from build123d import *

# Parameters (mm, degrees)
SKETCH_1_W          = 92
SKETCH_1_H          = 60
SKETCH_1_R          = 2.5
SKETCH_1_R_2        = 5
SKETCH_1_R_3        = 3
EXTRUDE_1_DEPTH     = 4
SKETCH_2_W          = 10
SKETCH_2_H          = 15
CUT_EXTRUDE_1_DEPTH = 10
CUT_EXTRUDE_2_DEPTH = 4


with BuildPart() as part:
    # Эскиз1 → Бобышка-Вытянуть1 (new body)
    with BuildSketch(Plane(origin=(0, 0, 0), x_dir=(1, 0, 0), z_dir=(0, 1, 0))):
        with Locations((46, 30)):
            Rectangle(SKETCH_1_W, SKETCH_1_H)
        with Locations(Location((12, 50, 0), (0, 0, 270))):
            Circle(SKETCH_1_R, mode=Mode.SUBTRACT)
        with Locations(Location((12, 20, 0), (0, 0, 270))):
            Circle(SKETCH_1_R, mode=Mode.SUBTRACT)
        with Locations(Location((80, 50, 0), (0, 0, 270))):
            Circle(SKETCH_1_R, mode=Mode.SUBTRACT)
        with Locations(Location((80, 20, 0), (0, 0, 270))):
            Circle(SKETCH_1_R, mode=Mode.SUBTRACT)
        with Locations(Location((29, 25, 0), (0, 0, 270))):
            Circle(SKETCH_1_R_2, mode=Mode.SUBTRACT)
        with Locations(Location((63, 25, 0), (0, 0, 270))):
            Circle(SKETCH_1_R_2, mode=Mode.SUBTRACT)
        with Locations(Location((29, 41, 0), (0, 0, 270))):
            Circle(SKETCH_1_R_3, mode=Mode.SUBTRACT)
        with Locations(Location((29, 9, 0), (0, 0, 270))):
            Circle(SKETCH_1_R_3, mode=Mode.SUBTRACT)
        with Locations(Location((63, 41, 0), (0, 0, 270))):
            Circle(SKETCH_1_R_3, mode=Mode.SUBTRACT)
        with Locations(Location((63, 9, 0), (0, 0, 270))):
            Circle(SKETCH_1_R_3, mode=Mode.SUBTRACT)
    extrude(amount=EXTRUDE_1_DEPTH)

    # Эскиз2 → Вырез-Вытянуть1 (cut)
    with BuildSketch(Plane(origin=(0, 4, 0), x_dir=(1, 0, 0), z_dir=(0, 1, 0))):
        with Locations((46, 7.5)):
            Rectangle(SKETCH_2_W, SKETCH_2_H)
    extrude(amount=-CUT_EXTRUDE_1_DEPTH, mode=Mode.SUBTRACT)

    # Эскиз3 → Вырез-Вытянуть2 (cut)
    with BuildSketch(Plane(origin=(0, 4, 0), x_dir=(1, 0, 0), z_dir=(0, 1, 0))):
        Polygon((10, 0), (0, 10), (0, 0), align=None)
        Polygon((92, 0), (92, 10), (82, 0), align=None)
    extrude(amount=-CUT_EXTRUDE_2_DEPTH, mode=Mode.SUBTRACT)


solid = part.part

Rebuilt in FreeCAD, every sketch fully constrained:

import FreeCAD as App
import Part
import Sketcher

V = App.Vector

doc = App.newDocument("Part")
body = doc.addObject("PartDesign::Body", "Body")

sketch1 = body.newObject("Sketcher::SketchObject", "Sketch")
sketch1.AttachmentSupport = (doc.getObject("XZ_Plane"), [""])
sketch1.MapMode = "FlatFace"
sketch1.addGeometry([
    Part.LineSegment(V(0, -60, 0), V(0, 0, 0)),
    Part.LineSegment(V(0, 0, 0), V(92, 0, 0)),
    Part.LineSegment(V(92, 0, 0), V(92, -60, 0)),
    Part.LineSegment(V(92, -60, 0), V(0, -60, 0)),
    Part.Circle(V(29, -9, 0), V(0, 0, 1), 3),
    Part.Circle(V(12, -20, 0), V(0, 0, 1), 2.5),
    Part.Circle(V(29, -25, 0), V(0, 0, 1), 5),
    Part.Circle(V(63, -9, 0), V(0, 0, 1), 3),
    Part.Circle(V(63, -25, 0), V(0, 0, 1), 5),
    Part.Circle(V(80, -20, 0), V(0, 0, 1), 2.5),
    Part.Circle(V(12, -50, 0), V(0, 0, 1), 2.5),
    Part.Circle(V(29, -41, 0), V(0, 0, 1), 3),
    Part.Circle(V(63, -41, 0), V(0, 0, 1), 3),
    Part.Circle(V(80, -50, 0), V(0, 0, 1), 2.5),
], False)
sketch1.addConstraint([
    Sketcher.Constraint("Coincident", 0, 2, 1, 1),
    Sketcher.Constraint("Coincident", 1, 2, 2, 1),
    Sketcher.Constraint("Coincident", 2, 2, 3, 1),
    Sketcher.Constraint("Coincident", 3, 2, 0, 1),
    Sketcher.Constraint("Vertical", 0),
    Sketcher.Constraint("Horizontal", 1),
    Sketcher.Constraint("Vertical", 2),
    Sketcher.Constraint("Horizontal", 3),
    Sketcher.Constraint("Coincident", 0, 2, -1, 1),
    Sketcher.Constraint("Equal", 4, 7),
    Sketcher.Constraint("Equal", 6, 8),
    Sketcher.Constraint("Equal", 5, 9),
    Sketcher.Constraint("Equal", 9, 10),
    Sketcher.Constraint("Equal", 7, 11),
    Sketcher.Constraint("Equal", 11, 12),
    Sketcher.Constraint("Equal", 10, 13),
    Sketcher.Constraint("Horizontal", 4, 3, 7, 3),
    Sketcher.Constraint("Horizontal", 6, 3, 8, 3),
    Sketcher.Constraint("Horizontal", 5, 3, 9, 3),
    Sketcher.Constraint("Horizontal", 11, 3, 12, 3),
    Sketcher.Constraint("Horizontal", 10, 3, 13, 3),
    Sketcher.Constraint("Vertical", 4, 3, 6, 3),
    Sketcher.Constraint("Vertical", 7, 3, 8, 3),
    Sketcher.Constraint("Vertical", 5, 3, 10, 3),
    Sketcher.Constraint("Vertical", 6, 3, 11, 3),
    Sketcher.Constraint("Vertical", 8, 3, 12, 3),
    Sketcher.Constraint("Vertical", 9, 3, 13, 3),
    Sketcher.Constraint("Diameter", 4, 6.0),
    Sketcher.Constraint("Diameter", 5, 5.0),
    Sketcher.Constraint("Diameter", 6, 10.0),
    Sketcher.Constraint("DistanceX", 1, 1, 1, 2, 92.0),
    Sketcher.Constraint("DistanceY", 0, 1, 0, 2, 60.0),
    Sketcher.Constraint("DistanceX", -1, 1, 4, 3, 29.0),
    Sketcher.Constraint("DistanceY", 4, 3, -1, 1, 9.0),
    Sketcher.Constraint("DistanceX", -1, 1, 5, 3, 12.0),
    Sketcher.Constraint("DistanceY", 5, 3, -1, 1, 20.0),
    Sketcher.Constraint("DistanceY", 6, 3, -1, 1, 25.0),
    Sketcher.Constraint("DistanceX", -1, 1, 7, 3, 63.0),
    Sketcher.Constraint("DistanceX", -1, 1, 9, 3, 80.0),
    Sketcher.Constraint("DistanceY", 10, 3, -1, 1, 50.0),
    Sketcher.Constraint("DistanceY", 11, 3, -1, 1, 41.0),
])
pad1 = body.newObject("PartDesign::Pad", "Pad")
pad1.Profile = sketch1
pad1.Length = 4
pad1.Reversed = True

sketch2 = body.newObject("Sketcher::SketchObject", "Sketch001")
sketch2.AttachmentSupport = (doc.getObject("XZ_Plane"), [""])
sketch2.MapMode = "FlatFace"
sketch2.AttachmentOffset = App.Placement(V(0, 0, -4), App.Rotation())
sketch2.addGeometry([
    Part.LineSegment(V(41, -15, 0), V(41, 0, 0)),
    Part.LineSegment(V(41, 0, 0), V(51, 0, 0)),
    Part.LineSegment(V(51, 0, 0), V(51, -15, 0)),
    Part.LineSegment(V(51, -15, 0), V(41, -15, 0)),
], False)
sketch2.addConstraint([
    Sketcher.Constraint("Coincident", 0, 2, 1, 1),
    Sketcher.Constraint("Coincident", 1, 2, 2, 1),
    Sketcher.Constraint("Coincident", 2, 2, 3, 1),
    Sketcher.Constraint("Coincident", 3, 2, 0, 1),
    Sketcher.Constraint("Vertical", 0),
    Sketcher.Constraint("Horizontal", 1),
    Sketcher.Constraint("Vertical", 2),
    Sketcher.Constraint("Horizontal", 3),
    Sketcher.Constraint("PointOnObject", 0, 2, -1),
    Sketcher.Constraint("DistanceX", 1, 1, 1, 2, 10.0),
    Sketcher.Constraint("DistanceY", 0, 1, 0, 2, 15.0),
    Sketcher.Constraint("DistanceX", -1, 1, 0, 2, 41.0),
])
pocket1 = body.newObject("PartDesign::Pocket", "Pocket")
pocket1.Profile = sketch2
pocket1.Length = 10
pocket1.Reversed = True

sketch3 = body.newObject("Sketcher::SketchObject", "Sketch002")
sketch3.AttachmentSupport = (doc.getObject("XZ_Plane"), [""])
sketch3.MapMode = "FlatFace"
sketch3.AttachmentOffset = App.Placement(V(0, 0, -4), App.Rotation())
sketch3.addGeometry([
    Part.LineSegment(V(10, 0, 0), V(0, -10, 0)),
    Part.LineSegment(V(0, -10, 0), V(0, 0, 0)),
    Part.LineSegment(V(0, 0, 0), V(10, 0, 0)),
    Part.LineSegment(V(92, 0, 0), V(92, -10, 0)),
    Part.LineSegment(V(92, -10, 0), V(82, 0, 0)),
    Part.LineSegment(V(82, 0, 0), V(92, 0, 0)),
], False)
sketch3.addConstraint([
    Sketcher.Constraint("Coincident", 0, 2, 1, 1),
    Sketcher.Constraint("Coincident", 1, 2, 2, 1),
    Sketcher.Constraint("Coincident", 2, 2, 0, 1),
    Sketcher.Constraint("Coincident", 3, 2, 4, 1),
    Sketcher.Constraint("Coincident", 4, 2, 5, 1),
    Sketcher.Constraint("Coincident", 5, 2, 3, 1),
    Sketcher.Constraint("Vertical", 1),
    Sketcher.Constraint("Horizontal", 2),
    Sketcher.Constraint("Vertical", 3),
    Sketcher.Constraint("Horizontal", 5),
    Sketcher.Constraint("Coincident", 1, 2, -1, 1),
    Sketcher.Constraint("PointOnObject", 4, 2, -1),
    Sketcher.Constraint("Perpendicular", 0, 4),
    Sketcher.Constraint("Horizontal", 0, 2, 3, 2),
    Sketcher.Constraint("Equal", 2, 5),
    Sketcher.Constraint("DistanceX", 2, 1, 2, 2, 10.0),
    Sketcher.Constraint("DistanceX", -1, 1, 3, 2, 92.0),
])
pocket2 = body.newObject("PartDesign::Pocket", "Pocket001")
pocket2.Profile = sketch3
pocket2.Length = 4
pocket2.Reversed = True

doc.recompute()
